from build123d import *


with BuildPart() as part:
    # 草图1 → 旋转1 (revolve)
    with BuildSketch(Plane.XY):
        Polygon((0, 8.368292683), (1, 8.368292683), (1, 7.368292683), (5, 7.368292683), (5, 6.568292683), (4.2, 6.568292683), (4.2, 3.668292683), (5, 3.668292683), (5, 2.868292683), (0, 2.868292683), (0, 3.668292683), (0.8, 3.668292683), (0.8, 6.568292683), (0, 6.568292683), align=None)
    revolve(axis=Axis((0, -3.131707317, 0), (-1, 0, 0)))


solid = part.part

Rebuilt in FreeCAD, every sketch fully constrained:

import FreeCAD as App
import Part
import Sketcher

V = App.Vector

doc = App.newDocument("Part")
body = doc.addObject("PartDesign::Body", "Body")

# Sketch on XY plane
sketch1 = body.newObject("Sketcher::SketchObject", "Sketch")
sketch1.AttachmentSupport = (doc.getObject("XY_Plane"), [""])
sketch1.MapMode = "FlatFace"
sketch1.addGeometry([
    Part.LineSegment(V(1, 8.4, 0), V(0, 8.4, 0)),  # 0
    Part.LineSegment(V(0, 8.4, 0), V(0, 6.6, 0)),  # 1
    Part.LineSegment(V(0, 6.6, 0), V(0.8, 6.6, 0)),  # 2
    Part.LineSegment(V(0.8, 6.6, 0), V(0.8, 3.7, 0)),  # 3
    Part.LineSegment(V(0.8, 3.7, 0), V(0, 3.7, 0)),  # 4
    Part.LineSegment(V(0, 3.7, 0), V(0, 2.9, 0)),  # 5
    Part.LineSegment(V(0, 2.9, 0), V(5, 2.9, 0)),  # 6
    Part.LineSegment(V(5, 2.9, 0), V(5, 3.7, 0)),  # 7
    Part.LineSegment(V(5, 3.7, 0), V(4.2, 3.7, 0)),  # 8
    Part.LineSegment(V(4.2, 3.7, 0), V(4.2, 6.6, 0)),  # 9
    Part.LineSegment(V(4.2, 6.6, 0), V(5, 6.6, 0)),  # 10
    Part.LineSegment(V(5, 6.6, 0), V(5, 7.4, 0)),  # 11
    Part.LineSegment(V(5, 7.4, 0), V(1, 7.4, 0)),  # 12
    Part.LineSegment(V(1, 7.4, 0), V(1, 8.4, 0)),  # 13
], False)
sketch1.addGeometry(Part.LineSegment(V(5, -3.1, 0), V(0, -3.1, 0)), True)  # axis
sketch1.addConstraint([
    Sketcher.Constraint("Coincident", 0, 2, 1, 1),
    Sketcher.Constraint("Coincident", 1, 2, 2, 1),
    Sketcher.Constraint("Coincident", 2, 2, 3, 1),
    Sketcher.Constraint("Coincident", 3, 2, 4, 1),
    Sketcher.Constraint("Coincident", 4, 2, 5, 1),
    Sketcher.Constraint("Coincident", 5, 2, 6, 1),
    Sketcher.Constraint("Coincident", 6, 2, 7, 1),
    Sketcher.Constraint("Coincident", 7, 2, 8, 1),
    Sketcher.Constraint("Coincident", 8, 2, 9, 1),
    Sketcher.Constraint("Coincident", 9, 2, 10, 1),
    Sketcher.Constraint("Coincident", 10, 2, 11, 1),
    Sketcher.Constraint("Coincident", 11, 2, 12, 1),
    Sketcher.Constraint("Coincident", 12, 2, 13, 1),
    Sketcher.Constraint("Coincident", 13, 2, 0, 1),
    Sketcher.Constraint("Horizontal", 0),
    Sketcher.Constraint("Vertical", 1),
    Sketcher.Constraint("Horizontal", 2),
    Sketcher.Constraint("Vertical", 3),
    Sketcher.Constraint("Horizontal", 4),
    Sketcher.Constraint("Vertical", 5),
    Sketcher.Constraint("Horizontal", 6),
    Sketcher.Constraint("Vertical", 7),
    Sketcher.Constraint("Horizontal", 8),
    Sketcher.Constraint("Vertical", 9),
    Sketcher.Constraint("Horizontal", 10),
    Sketcher.Constraint("Vertical", 11),
    Sketcher.Constraint("Horizontal", 12),
    Sketcher.Constraint("Vertical", 13),
    Sketcher.Constraint("Horizontal", 14),
    Sketcher.Constraint("PointOnObject", 0, 2, -2),
    Sketcher.Constraint("PointOnObject", 4, 2, -2),
    Sketcher.Constraint("PointOnObject", 14, 2, -2),
    Sketcher.Constraint("Horizontal", 4, 2, 7, 2),
    Sketcher.Constraint("Horizontal", 2, 2, 9, 2),
    Sketcher.Constraint("Vertical", 7, 2, 10, 2),
    Sketcher.Constraint("Vertical", 11, 2, 14, 1),
    Sketcher.Constraint("Equal", 4, 8),
    Sketcher.Constraint("Equal", 10, 5),
    Sketcher.Constraint("Equal", 7, 11),
    Sketcher.Constraint("Equal", 0, 13),
    Sketcher.Constraint("DistanceX", 0, 2, 0, 1, 1.0),
    Sketcher.Constraint("DistanceX", 6, 1, 6, 2, 5.0),
    Sketcher.Constraint("DistanceX", 2, 1, 2, 2, 0.8),
    Sketcher.Constraint("DistanceY", 3, 2, 3, 1, 2.9),
    Sketcher.Constraint("DistanceY", 14, 1, 6, 2, 6.0),
    Sketcher.Constraint("DistanceY", -1, 1, 0, 2, 8.368293),
])
revolution = body.newObject("PartDesign::Revolution", "Revolution")
revolution.Profile = sketch1
revolution.ReferenceAxis = (sketch1, ["Axis0"])
revolution.Angle = 360

doc.recompute()
